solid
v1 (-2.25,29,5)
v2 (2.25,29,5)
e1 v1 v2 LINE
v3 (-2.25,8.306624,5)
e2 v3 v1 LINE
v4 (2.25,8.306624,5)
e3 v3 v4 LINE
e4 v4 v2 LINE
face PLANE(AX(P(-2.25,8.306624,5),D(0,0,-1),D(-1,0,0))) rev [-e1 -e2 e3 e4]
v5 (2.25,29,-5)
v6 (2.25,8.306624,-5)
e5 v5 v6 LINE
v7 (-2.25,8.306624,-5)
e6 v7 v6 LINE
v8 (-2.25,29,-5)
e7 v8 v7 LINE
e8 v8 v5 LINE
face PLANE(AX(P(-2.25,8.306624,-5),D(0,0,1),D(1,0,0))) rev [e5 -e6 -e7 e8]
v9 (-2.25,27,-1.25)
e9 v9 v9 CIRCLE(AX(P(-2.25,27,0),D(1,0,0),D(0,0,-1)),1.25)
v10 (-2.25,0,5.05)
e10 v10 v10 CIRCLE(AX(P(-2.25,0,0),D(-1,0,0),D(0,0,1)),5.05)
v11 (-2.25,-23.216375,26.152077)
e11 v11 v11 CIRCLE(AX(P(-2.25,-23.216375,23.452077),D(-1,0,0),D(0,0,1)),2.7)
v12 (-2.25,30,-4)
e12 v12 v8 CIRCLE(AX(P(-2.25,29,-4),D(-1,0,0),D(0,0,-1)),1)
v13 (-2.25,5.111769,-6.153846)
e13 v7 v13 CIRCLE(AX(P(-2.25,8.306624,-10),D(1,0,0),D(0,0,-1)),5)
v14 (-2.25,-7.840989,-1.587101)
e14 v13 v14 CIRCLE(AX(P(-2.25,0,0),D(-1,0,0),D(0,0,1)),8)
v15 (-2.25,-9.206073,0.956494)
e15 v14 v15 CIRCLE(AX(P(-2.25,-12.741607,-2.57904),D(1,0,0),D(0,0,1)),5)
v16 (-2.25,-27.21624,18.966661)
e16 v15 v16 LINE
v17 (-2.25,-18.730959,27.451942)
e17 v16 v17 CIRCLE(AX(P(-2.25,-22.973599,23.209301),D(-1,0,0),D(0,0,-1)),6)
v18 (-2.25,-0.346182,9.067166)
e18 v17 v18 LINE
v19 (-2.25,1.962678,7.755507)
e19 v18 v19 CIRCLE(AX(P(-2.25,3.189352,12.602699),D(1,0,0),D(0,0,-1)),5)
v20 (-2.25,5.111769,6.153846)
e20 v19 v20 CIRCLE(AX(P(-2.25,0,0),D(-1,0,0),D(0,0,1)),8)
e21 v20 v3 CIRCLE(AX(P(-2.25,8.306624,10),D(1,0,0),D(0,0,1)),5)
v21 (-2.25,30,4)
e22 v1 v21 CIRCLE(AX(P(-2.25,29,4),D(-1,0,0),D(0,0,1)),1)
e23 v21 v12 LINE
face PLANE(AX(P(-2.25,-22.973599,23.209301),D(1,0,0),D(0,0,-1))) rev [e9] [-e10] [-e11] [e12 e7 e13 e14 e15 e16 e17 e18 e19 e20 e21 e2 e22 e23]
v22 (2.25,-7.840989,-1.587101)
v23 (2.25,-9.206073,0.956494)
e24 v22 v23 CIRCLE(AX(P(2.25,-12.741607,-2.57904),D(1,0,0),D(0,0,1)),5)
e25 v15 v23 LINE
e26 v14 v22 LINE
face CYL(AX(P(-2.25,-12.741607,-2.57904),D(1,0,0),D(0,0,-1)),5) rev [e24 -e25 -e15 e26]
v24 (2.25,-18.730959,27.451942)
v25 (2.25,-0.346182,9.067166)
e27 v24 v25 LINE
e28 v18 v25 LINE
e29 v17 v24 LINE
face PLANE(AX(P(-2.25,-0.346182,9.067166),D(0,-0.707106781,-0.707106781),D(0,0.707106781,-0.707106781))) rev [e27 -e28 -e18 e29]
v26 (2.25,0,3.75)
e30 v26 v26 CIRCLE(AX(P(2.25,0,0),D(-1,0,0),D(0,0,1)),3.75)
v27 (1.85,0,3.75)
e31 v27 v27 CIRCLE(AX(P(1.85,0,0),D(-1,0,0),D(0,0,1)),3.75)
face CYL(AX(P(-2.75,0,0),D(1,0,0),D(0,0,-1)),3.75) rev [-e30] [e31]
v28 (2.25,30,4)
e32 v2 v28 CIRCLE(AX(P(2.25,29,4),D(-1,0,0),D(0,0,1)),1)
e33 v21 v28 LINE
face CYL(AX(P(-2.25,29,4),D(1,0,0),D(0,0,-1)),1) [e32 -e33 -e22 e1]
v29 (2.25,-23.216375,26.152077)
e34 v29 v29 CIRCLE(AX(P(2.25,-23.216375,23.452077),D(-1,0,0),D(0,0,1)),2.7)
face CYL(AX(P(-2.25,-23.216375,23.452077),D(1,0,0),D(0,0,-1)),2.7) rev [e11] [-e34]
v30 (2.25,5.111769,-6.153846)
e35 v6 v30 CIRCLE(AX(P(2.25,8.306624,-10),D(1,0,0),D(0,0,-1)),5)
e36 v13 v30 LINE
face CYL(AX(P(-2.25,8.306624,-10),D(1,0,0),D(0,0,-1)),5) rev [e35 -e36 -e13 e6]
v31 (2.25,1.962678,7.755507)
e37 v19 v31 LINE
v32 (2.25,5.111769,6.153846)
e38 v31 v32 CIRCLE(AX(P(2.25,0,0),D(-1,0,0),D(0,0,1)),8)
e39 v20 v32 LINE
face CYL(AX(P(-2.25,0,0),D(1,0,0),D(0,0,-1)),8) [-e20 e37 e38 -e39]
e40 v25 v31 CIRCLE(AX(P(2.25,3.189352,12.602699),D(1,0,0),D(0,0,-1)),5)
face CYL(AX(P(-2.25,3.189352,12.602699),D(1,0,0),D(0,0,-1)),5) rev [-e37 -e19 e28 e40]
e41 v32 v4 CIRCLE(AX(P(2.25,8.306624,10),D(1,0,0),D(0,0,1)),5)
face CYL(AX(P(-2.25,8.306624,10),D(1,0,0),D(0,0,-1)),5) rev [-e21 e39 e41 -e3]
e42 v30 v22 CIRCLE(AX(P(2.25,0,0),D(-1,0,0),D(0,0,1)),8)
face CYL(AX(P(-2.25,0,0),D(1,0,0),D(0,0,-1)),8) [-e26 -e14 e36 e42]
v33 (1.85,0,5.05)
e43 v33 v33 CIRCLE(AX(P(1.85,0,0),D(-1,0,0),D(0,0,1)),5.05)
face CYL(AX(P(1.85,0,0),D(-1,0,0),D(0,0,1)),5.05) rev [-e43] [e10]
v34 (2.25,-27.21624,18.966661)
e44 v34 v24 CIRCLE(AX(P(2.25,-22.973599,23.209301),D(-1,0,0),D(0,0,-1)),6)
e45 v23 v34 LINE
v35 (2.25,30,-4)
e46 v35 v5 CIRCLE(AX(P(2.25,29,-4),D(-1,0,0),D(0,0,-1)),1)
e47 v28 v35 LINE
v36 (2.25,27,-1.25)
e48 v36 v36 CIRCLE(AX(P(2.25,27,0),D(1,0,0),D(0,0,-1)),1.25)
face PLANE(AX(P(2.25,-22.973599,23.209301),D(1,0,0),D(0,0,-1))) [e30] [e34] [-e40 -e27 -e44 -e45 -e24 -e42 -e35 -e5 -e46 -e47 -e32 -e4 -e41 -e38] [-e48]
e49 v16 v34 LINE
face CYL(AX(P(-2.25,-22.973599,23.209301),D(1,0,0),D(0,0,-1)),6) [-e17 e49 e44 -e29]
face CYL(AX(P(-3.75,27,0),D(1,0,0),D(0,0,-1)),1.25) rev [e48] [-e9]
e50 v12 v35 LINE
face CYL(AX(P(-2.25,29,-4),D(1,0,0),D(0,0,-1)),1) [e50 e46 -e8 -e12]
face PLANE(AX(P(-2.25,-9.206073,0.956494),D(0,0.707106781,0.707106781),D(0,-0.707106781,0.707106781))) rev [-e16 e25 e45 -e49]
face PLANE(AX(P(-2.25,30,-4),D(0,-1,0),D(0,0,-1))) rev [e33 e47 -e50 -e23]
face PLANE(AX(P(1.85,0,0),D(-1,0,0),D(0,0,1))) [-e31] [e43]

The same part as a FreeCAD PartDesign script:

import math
import FreeCAD as App
import Part
import Sketcher

V = App.Vector
Q = App.Units.Quantity

doc = App.newDocument("Part")
body = doc.addObject("PartDesign::Body", "Body")

sketch1 = doc.addObject("Sketcher::SketchObject", "Sketch")
body.addObject(sketch1)
sketch1.AttachmentSupport = (doc.YZ_Plane, [""])
sketch1.MapMode = "FlatFace"
sketch1.addGeometry(Part.LineSegment(V(30, 4, 0), V(30, -4, 0)), False)
sketch1.addGeometry(Part.ArcOfCircle(Part.Circle(V(29, -4, 0), V(0, 0, 1), 1), math.radians(-90), math.radians(0)), False)
sketch1.addGeometry(Part.LineSegment(V(29, -5, 0), V(8.306624, -5, 0)), False)
sketch1.addGeometry(Part.ArcOfCircle(Part.Circle(V(8.306624, -10, 0), V(0, 0, 1), 5), math.radians(90), math.radians(129.715137)), False)
sketch1.addGeometry(Part.ArcOfCircle(Part.Circle(V(0, 0, 0), V(0, 0, 1), 8), math.radians(-168.55731), math.radians(-50.284863)), False)
sketch1.addGeometry(Part.ArcOfCircle(Part.Circle(V(-12.741607, -2.57904, 0), V(0, 0, 1), 5), math.radians(11.44269), math.radians(45)), False)
sketch1.addGeometry(Part.LineSegment(V(-9.206073, 0.956494, 0), V(-27.21624, 18.966661, 0)), False)
sketch1.addGeometry(Part.ArcOfCircle(Part.Circle(V(-22.973599, 23.209301, 0), V(0, 0, 1), 6), math.radians(45), math.radians(225)), False)
sketch1.addGeometry(Part.LineSegment(V(-18.730959, 27.451942, 0), V(-0.346182, 9.067166, 0)), False)
sketch1.addGeometry(Part.ArcOfCircle(Part.Circle(V(3.189352, 12.602699, 0), V(0, 0, 1), 5), math.radians(-135), math.radians(-104.201618)), False)
sketch1.addGeometry(Part.ArcOfCircle(Part.Circle(V(0, 0, 0), V(0, 0, 1), 8), math.radians(50.284863), math.radians(75.798382)), False)
sketch1.addGeometry(Part.ArcOfCircle(Part.Circle(V(8.306624, 10, 0), V(0, 0, 1), 5), math.radians(-129.715137), math.radians(-90)), False)
sketch1.addGeometry(Part.LineSegment(V(8.306624, 5, 0), V(29, 5, 0)), False)
sketch1.addGeometry(Part.ArcOfCircle(Part.Circle(V(29, 4, 0), V(0, 0, 1), 1), math.radians(0), math.radians(90)), False)
sketch1.addGeometry(Part.Circle(V(-23.216375, 23.452077, 0), V(0, 0, 1), 2.7), False)
sketch1.addConstraint(Sketcher.Constraint("Tangent", 0, 2, 1, 2))
sketch1.addConstraint(Sketcher.Constraint("Tangent", 1, 1, 2, 1))
sketch1.addConstraint(Sketcher.Constraint("Tangent", 2, 2, 3, 1))
sketch1.addConstraint(Sketcher.Constraint("Tangent", 3, 2, 4, 2))
sketch1.addConstraint(Sketcher.Constraint("Tangent", 4, 1, 5, 1))
sketch1.addConstraint(Sketcher.Constraint("Tangent", 5, 2, 6, 1))
sketch1.addConstraint(Sketcher.Constraint("Tangent", 6, 2, 7, 2))
sketch1.addConstraint(Sketcher.Constraint("Tangent", 7, 1, 8, 1))
sketch1.addConstraint(Sketcher.Constraint("Tangent", 8, 2, 9, 1))
sketch1.addConstraint(Sketcher.Constraint("Tangent", 9, 2, 10, 2))
sketch1.addConstraint(Sketcher.Constraint("Tangent", 10, 1, 11, 1))
sketch1.addConstraint(Sketcher.Constraint("Tangent", 11, 2, 12, 1))
sketch1.addConstraint(Sketcher.Constraint("Tangent", 12, 2, 13, 2))
sketch1.addConstraint(Sketcher.Constraint("Tangent", 13, 1, 0, 1))
sketch1.addConstraint(Sketcher.Constraint("Vertical", 0))
sketch1.addConstraint(Sketcher.Constraint("Horizontal", 2))
sketch1.addConstraint(Sketcher.Constraint("Horizontal", 12))
sketch1.addConstraint(Sketcher.Constraint("Coincident", 4, 3, -1, 1))
sketch1.addConstraint(Sketcher.Constraint("Coincident", 10, 3, -1, 1))
sketch1.addConstraint(Sketcher.Constraint("Equal", 3, 5))
sketch1.addConstraint(Sketcher.Constraint("Equal", 5, 9))
sketch1.addConstraint(Sketcher.Constraint("Equal", 4, 10))
sketch1.addConstraint(Sketcher.Constraint("Equal", 9, 11))
sketch1.addConstraint(Sketcher.Constraint("Equal", 1, 13))
sketch1.addConstraint(Sketcher.Constraint("Parallel", 6, 8))
sketch1.addConstraint(Sketcher.Constraint("Vertical", 3, 3, 11, 3))
sketch1.addConstraint(Sketcher.Constraint("Radius", 1, 1.0))
sketch1.addConstraint(Sketcher.Constraint("Radius", 3, 5.0))
sketch1.addConstraint(Sketcher.Constraint("Radius", 4, 8.0))
sketch1.addConstraint(Sketcher.Constraint("Radius", 7, 6.0))
sketch1.addConstraint(Sketcher.Constraint("Diameter", 14, 5.4))
sketch1.addConstraint(Sketcher.Constraint("DistanceY", 0, 2, 0, 1, 8.0))
sketch1.addConstraint(Sketcher.Constraint("Angle", 6, Q("135 deg")))
sketch1.addConstraint(Sketcher.Constraint("Distance", 8, 26.0))
sketch1.addConstraint(Sketcher.Constraint("DistanceX", -1, 1, 1, 3, 29.0))
sketch1.addConstraint(Sketcher.Constraint("DistanceX", 7, 3, -1, 1, 22.973599))
sketch1.addConstraint(Sketcher.Constraint("DistanceX", 14, 3, -1, 1, 23.216375))
sketch1.addConstraint(Sketcher.Constraint("DistanceY", -1, 1, 14, 3, 23.452077))
pad1 = doc.addObject("PartDesign::Pad", "Pad")
body.addObject(pad1)
pad1.Profile = sketch1
pad1.Length = 4.5
pad1.Midplane = True

sketch2 = doc.addObject("Sketcher::SketchObject", "Sketch001")
body.addObject(sketch2)
sketch2.AttachmentSupport = (doc.YZ_Plane, [""])
sketch2.MapMode = "FlatFace"
sketch2.AttachmentOffset = App.Placement(V(0, 0, 2.25), App.Rotation())
sketch2.addGeometry(Part.Circle(V(0, 0, 0), V(0, 0, 1), 3.75), False)
sketch2.addConstraint(Sketcher.Constraint("Coincident", 0, 3, -1, 1))
sketch2.addConstraint(Sketcher.Constraint("Diameter", 0, 7.5))
pocket1 = doc.addObject("PartDesign::Pocket", "Pocket")
body.addObject(pocket1)
pocket1.Profile = sketch2
pocket1.Length = 5

sketch3 = doc.addObject("Sketcher::SketchObject", "Sketch002")
body.addObject(sketch3)
sketch3.AttachmentSupport = (doc.YZ_Plane, [""])
sketch3.MapMode = "FlatFace"
sketch3.AttachmentOffset = App.Placement(V(0, 0, -2.25), App.Rotation())
sketch3.addGeometry(Part.Circle(V(0, 0, 0), V(0, 0, 1), 5.05), False)
sketch3.addConstraint(Sketcher.Constraint("Coincident", 0, 3, -1, 1))
sketch3.addConstraint(Sketcher.Constraint("Diameter", 0, 10.1))
pocket2 = doc.addObject("PartDesign::Pocket", "Pocket001")
body.addObject(pocket2)
pocket2.Profile = sketch3
pocket2.Length = 4.1
pocket2.Reversed = True

sketch4 = doc.addObject("Sketcher::SketchObject", "Sketch003")
body.addObject(sketch4)
sketch4.AttachmentSupport = (doc.YZ_Plane, [""])
sketch4.MapMode = "FlatFace"
sketch4.AttachmentOffset = App.Placement(V(0, 0, 2.25), App.Rotation())
sketch4.addGeometry(Part.Circle(V(27, 0, 0), V(0, 0, 1), 1.25), False)
sketch4.addConstraint(Sketcher.Constraint("PointOnObject", 0, 3, -1))
sketch4.addConstraint(Sketcher.Constraint("Diameter", 0, 2.5))
sketch4.addConstraint(Sketcher.Constraint("DistanceX", -1, 1, 0, 3, 27.0))
pocket3 = doc.addObject("PartDesign::Pocket", "Pocket002")
body.addObject(pocket3)
pocket3.Profile = sketch4
pocket3.Length = 6

doc.recompute()
